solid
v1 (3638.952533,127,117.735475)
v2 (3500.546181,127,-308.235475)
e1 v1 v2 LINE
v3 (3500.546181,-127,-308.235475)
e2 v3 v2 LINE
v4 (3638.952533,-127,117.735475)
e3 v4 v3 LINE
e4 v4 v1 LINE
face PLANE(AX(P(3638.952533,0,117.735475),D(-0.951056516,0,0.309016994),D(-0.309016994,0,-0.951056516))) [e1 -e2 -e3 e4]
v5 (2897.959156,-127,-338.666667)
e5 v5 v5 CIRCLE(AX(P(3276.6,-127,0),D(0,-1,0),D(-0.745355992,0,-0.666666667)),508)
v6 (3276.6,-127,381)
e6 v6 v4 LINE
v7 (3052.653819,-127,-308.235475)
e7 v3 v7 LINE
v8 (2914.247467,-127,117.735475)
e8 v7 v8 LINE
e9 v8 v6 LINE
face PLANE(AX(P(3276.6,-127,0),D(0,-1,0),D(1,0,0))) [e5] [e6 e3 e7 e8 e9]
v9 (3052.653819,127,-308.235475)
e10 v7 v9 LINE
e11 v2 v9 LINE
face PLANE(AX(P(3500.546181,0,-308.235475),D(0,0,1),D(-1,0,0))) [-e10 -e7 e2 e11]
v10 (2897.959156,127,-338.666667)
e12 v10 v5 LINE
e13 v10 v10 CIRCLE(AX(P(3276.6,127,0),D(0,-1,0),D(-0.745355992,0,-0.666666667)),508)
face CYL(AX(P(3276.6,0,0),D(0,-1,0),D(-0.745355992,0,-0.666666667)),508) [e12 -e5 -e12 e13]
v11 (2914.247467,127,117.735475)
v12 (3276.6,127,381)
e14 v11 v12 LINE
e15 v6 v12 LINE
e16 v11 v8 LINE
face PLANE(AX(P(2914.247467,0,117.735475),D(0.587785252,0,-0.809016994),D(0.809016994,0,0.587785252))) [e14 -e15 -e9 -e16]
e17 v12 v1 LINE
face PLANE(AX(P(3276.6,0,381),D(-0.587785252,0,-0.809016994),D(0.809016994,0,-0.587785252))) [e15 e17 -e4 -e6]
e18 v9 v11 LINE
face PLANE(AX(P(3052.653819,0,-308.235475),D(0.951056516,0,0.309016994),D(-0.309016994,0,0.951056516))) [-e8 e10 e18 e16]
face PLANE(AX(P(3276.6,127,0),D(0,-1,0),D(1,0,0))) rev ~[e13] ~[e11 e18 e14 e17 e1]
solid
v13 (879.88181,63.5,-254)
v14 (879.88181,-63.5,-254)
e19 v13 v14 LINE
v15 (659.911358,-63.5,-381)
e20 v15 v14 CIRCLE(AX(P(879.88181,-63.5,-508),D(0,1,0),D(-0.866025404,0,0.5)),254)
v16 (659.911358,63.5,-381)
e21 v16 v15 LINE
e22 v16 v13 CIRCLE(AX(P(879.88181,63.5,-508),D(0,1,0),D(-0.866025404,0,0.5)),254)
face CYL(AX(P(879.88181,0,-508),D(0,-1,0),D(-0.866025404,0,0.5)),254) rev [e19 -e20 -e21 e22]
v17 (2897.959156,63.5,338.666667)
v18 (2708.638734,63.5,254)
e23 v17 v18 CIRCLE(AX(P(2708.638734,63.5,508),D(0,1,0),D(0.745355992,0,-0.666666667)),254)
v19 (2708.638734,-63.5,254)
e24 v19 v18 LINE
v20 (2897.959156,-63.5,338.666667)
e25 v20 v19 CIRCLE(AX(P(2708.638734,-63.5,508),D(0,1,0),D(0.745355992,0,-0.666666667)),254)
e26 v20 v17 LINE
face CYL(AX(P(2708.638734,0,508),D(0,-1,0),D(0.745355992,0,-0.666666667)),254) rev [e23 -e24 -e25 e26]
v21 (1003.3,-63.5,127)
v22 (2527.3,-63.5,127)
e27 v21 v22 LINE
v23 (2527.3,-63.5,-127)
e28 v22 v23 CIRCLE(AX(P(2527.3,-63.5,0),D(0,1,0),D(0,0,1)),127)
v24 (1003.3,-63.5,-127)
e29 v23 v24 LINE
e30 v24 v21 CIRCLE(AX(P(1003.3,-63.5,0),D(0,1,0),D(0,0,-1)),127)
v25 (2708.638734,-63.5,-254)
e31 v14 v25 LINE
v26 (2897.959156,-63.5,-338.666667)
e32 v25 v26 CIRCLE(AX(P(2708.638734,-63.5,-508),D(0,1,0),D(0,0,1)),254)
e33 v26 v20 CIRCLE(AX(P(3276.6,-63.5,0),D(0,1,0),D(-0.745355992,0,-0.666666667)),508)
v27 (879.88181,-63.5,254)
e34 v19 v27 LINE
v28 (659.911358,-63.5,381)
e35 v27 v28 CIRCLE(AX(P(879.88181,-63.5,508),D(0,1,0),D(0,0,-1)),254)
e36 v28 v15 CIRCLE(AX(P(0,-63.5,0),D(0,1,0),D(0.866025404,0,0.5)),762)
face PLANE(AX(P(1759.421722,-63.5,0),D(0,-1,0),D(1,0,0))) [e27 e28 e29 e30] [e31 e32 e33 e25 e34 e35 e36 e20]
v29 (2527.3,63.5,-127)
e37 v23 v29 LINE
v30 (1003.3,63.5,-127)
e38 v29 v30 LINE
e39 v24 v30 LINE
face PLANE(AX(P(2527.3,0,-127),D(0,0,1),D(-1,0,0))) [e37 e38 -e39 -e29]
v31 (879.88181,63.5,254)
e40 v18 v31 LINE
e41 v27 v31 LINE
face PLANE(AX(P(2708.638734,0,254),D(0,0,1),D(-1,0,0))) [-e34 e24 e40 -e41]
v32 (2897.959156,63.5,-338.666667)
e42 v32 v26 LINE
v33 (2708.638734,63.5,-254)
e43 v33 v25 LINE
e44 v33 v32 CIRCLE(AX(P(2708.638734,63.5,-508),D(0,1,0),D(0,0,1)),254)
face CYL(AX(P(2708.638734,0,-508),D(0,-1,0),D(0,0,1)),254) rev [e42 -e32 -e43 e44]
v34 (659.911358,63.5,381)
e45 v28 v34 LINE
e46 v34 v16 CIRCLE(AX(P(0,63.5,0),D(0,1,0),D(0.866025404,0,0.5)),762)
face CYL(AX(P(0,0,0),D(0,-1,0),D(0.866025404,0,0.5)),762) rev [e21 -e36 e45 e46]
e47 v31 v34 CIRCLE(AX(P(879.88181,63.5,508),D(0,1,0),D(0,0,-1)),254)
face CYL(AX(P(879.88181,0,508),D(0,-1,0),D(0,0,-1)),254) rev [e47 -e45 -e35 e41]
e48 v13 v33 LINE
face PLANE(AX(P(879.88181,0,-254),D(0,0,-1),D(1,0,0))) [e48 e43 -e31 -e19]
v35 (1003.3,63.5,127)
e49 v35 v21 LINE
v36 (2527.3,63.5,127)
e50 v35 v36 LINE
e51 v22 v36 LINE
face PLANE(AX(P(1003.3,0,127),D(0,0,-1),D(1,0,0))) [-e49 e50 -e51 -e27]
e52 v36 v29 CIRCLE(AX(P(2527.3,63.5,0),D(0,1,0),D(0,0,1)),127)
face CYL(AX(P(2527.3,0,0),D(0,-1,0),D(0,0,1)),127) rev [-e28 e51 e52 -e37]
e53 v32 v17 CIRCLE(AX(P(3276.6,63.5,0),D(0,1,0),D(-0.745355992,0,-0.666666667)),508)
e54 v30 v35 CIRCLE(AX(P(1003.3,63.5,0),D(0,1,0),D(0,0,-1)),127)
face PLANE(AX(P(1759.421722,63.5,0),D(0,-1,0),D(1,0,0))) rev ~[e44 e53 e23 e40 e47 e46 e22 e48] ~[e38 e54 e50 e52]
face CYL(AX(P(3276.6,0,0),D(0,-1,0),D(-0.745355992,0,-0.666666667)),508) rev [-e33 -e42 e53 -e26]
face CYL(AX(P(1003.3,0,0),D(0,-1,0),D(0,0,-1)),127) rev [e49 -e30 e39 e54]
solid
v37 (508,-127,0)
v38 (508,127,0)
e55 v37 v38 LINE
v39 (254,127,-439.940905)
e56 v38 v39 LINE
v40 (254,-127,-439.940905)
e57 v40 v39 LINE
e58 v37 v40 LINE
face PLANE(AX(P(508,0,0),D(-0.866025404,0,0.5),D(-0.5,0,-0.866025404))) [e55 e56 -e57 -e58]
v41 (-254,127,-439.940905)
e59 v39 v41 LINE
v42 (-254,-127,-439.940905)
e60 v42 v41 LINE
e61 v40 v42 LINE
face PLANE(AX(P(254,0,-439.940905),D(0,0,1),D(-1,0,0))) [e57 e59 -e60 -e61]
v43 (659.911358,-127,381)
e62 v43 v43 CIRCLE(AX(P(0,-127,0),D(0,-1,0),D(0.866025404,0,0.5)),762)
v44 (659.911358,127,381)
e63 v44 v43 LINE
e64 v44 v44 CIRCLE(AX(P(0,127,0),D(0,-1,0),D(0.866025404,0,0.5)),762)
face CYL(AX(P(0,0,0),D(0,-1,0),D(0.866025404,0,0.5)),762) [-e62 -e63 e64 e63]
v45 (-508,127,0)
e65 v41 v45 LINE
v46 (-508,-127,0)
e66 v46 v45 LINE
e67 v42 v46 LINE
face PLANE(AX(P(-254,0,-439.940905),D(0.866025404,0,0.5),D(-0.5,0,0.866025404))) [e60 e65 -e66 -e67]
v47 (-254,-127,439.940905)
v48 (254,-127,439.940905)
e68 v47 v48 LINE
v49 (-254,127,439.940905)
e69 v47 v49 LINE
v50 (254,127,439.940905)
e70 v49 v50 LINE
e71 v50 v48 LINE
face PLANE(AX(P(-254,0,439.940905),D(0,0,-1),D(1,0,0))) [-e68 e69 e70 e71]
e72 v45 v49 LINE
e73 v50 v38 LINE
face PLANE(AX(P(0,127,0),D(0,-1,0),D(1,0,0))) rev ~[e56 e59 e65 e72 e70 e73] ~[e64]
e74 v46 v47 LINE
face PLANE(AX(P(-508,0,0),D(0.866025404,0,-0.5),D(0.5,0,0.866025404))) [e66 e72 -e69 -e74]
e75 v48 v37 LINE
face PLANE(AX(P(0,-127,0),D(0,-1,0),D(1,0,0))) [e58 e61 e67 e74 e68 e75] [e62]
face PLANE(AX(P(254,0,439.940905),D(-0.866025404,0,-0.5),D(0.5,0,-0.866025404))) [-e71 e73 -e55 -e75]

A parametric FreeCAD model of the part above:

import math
import FreeCAD as App
import Part
import Sketcher

V = App.Vector
Q = App.Units.Quantity

doc = App.newDocument("Part")
body = doc.addObject("PartDesign::Body", "Body")

# Sketch on XZ plane
sketch1 = doc.addObject("Sketcher::SketchObject", "Sketch")
body.addObject(sketch1)
sketch1.AttachmentSupport = (doc.XZ_Plane, [""])
sketch1.MapMode = "FlatFace"
sketch1.addGeometry([
    Part.Circle(V(3277, 0, 0), V(0, 0, 1), 508),  # 0
    Part.LineSegment(V(3053, -308, 0), V(2914, 118, 0)),  # 1
    Part.LineSegment(V(2914, 118, 0), V(3277, 381, 0)),  # 2
    Part.LineSegment(V(3277, 381, 0), V(3639, 118, 0)),  # 3
    Part.LineSegment(V(3639, 118, 0), V(3501, -308, 0)),  # 4
    Part.LineSegment(V(3501, -308, 0), V(3053, -308, 0)),  # 5
], False)
sketch1.addConstraint([
    Sketcher.Constraint("Coincident", 1, 2, 2, 1),
    Sketcher.Constraint("Coincident", 2, 2, 3, 1),
    Sketcher.Constraint("Coincident", 3, 2, 4, 1),
    Sketcher.Constraint("Coincident", 4, 2, 5, 1),
    Sketcher.Constraint("Coincident", 5, 2, 1, 1),
    Sketcher.Constraint("Horizontal", 5),
    Sketcher.Constraint("PointOnObject", 0, 3, -1),
    Sketcher.Constraint("Horizontal", 1, 2, 3, 2),
    Sketcher.Constraint("Vertical", 0, 3, 2, 2),
    Sketcher.Constraint("Equal", 1, 2),
    Sketcher.Constraint("Equal", 2, 3),
    Sketcher.Constraint("Equal", 3, 4),
    Sketcher.Constraint("Diameter", 0, Q("40 in")),
    Sketcher.Constraint("DistanceX", -1, 1, 0, 3, Q("129 in")),
    Sketcher.Constraint("DistanceY", -1, 1, 2, 2, Q("15 in")),
    Sketcher.Constraint("Angle", 1, Q("108 deg")),
    Sketcher.Constraint("Angle", 2, Q("36 deg")),
    Sketcher.Constraint("DistanceX", 5, 2, 5, 1, Q("447.892362 mm")),
])
pad1 = doc.addObject("PartDesign::Pad", "Pad")
body.addObject(pad1)
pad1.Profile = sketch1
pad1.Length = Q("10 in")
pad1.Midplane = True
body2 = doc.addObject("PartDesign::Body", "Body001")

# Sketch on XZ plane
sketch2 = doc.addObject("Sketcher::SketchObject", "Sketch001")
body2.addObject(sketch2)
sketch2.AttachmentSupport = (doc.getObject("XZ_Plane001"), [""])
sketch2.MapMode = "FlatFace"
sketch2.addGeometry([
    Part.Circle(V(0, 0, 0), V(0, 0, 1), 762),  # 0
    Part.LineSegment(V(-254, 440, 0), V(254, 440, 0)),  # 1
    Part.LineSegment(V(254, 440, 0), V(508, 0, 0)),  # 2
    Part.LineSegment(V(508, 0, 0), V(254, -440, 0)),  # 3
    Part.LineSegment(V(254, -440, 0), V(-254, -440, 0)),  # 4
    Part.LineSegment(V(-254, -440, 0), V(-508, 0, 0)),  # 5
    Part.LineSegment(V(-508, 0, 0), V(-254, 440, 0)),  # 6
], False)
sketch2.addConstraint([
    Sketcher.Constraint("Coincident", 1, 2, 2, 1),
    Sketcher.Constraint("Coincident", 2, 2, 3, 1),
    Sketcher.Constraint("Coincident", 3, 2, 4, 1),
    Sketcher.Constraint("Coincident", 4, 2, 5, 1),
    Sketcher.Constraint("Coincident", 5, 2, 6, 1),
    Sketcher.Constraint("Coincident", 6, 2, 1, 1),
    Sketcher.Constraint("Horizontal", 1),
    Sketcher.Constraint("Horizontal", 4),
    Sketcher.Constraint("Coincident", 0, 3, -1, 1),
    Sketcher.Constraint("Symmetric", 1, 2, 4, 2, -1, 1),
    Sketcher.Constraint("Symmetric", 2, 2, 5, 2, -1, 1),
    Sketcher.Constraint("PointOnObject", 2, 2, -1),
    Sketcher.Constraint("Parallel", 3, 6),
    Sketcher.Constraint("Vertical", 1, 2, 3, 2),
    Sketcher.Constraint("Diameter", 0, Q("60 in")),
    Sketcher.Constraint("DistanceX", 1, 1, 1, 2, Q("20 in")),
    Sketcher.Constraint("Distance", 2, Q("20 in")),
    Sketcher.Constraint("DistanceX", -1, 1, 2, 2, Q("20 in")),
])
pad2 = doc.addObject("PartDesign::Pad", "Pad001")
body2.addObject(pad2)
pad2.Profile = sketch2
pad2.Length = Q("10 in")
pad2.Midplane = True
body3 = doc.addObject("PartDesign::Body", "Body002")

# Sketch on XZ plane
sketch3 = doc.addObject("Sketcher::SketchObject", "Sketch002")
body3.addObject(sketch3)
sketch3.AttachmentSupport = (doc.getObject("XZ_Plane002"), [""])
sketch3.MapMode = "FlatFace"
sketch3.addGeometry([
    Part.ArcOfCircle(Part.Circle(V(0, 0, 0), V(0, 0, 1), 762), math.radians(-30), math.radians(30)),  # 0
    Part.ArcOfCircle(Part.Circle(V(880, -508, 0), V(0, 0, 1), 254), math.radians(90), math.radians(150)),  # 1
    Part.LineSegment(V(880, -254, 0), V(2709, -254, 0)),  # 2
    Part.ArcOfCircle(Part.Circle(V(2709, -508, 0), V(0, 0, 1), 254), math.radians(42), math.radians(90)),  # 3
    Part.ArcOfCircle(Part.Circle(V(3277, 0, 0), V(0, 0, 1), 508), math.radians(138), math.radians(222)),  # 4
    Part.ArcOfCircle(Part.Circle(V(2709, 508, 0), V(0, 0, 1), 254), math.radians(-90), math.radians(-42)),  # 5
    Part.LineSegment(V(2709, 254, 0), V(880, 254, 0)),  # 6
    Part.ArcOfCircle(Part.Circle(V(880, 508, 0), V(0, 0, 1), 254), math.radians(-150), math.radians(-90)),  # 7
    Part.ArcOfCircle(Part.Circle(V(1003, 0, 0), V(0, 0, 1), 127), math.radians(90), math.radians(270)),  # 8
    Part.LineSegment(V(1003, 127, 0), V(2527, 127, 0)),  # 9
    Part.ArcOfCircle(Part.Circle(V(2527, 0, 0), V(0, 0, 1), 127), math.radians(-90), math.radians(90)),  # 10
    Part.LineSegment(V(2527, -127, 0), V(1003, -127, 0)),  # 11
], False)
sketch3.addConstraint([
    Sketcher.Constraint("Tangent", 0, 1, 1, 2),
    Sketcher.Constraint("Tangent", 1, 1, 2, 1),
    Sketcher.Constraint("Tangent", 2, 2, 3, 2),
    Sketcher.Constraint("Tangent", 3, 1, 4, 2),
    Sketcher.Constraint("Tangent", 4, 1, 5, 2),
    Sketcher.Constraint("Tangent", 5, 1, 6, 1),
    Sketcher.Constraint("Tangent", 6, 2, 7, 2),
    Sketcher.Constraint("Tangent", 7, 1, 0, 2),
    Sketcher.Constraint("Tangent", 8, 1, 9, 1),
    Sketcher.Constraint("Tangent", 9, 2, 10, 2),
    Sketcher.Constraint("Tangent", 10, 1, 11, 1),
    Sketcher.Constraint("Tangent", 11, 2, 8, 2),
    Sketcher.Constraint("Horizontal", 2),
    Sketcher.Constraint("Horizontal", 6),
    Sketcher.Constraint("Horizontal", 9),
    Sketcher.Constraint("Horizontal", 11),
    Sketcher.Constraint("Coincident", 0, 3, -1, 1),
    Sketcher.Constraint("Equal", 1, 3),
    Sketcher.Constraint("Equal", 3, 5),
    Sketcher.Constraint("Equal", 5, 7),
    Sketcher.Constraint("Symmetric", 3, 3, 5, 3, -1),
    Sketcher.Constraint("PointOnObject", 8, 3, -1),
    Sketcher.Constraint("Radius", 0, Q("30 in")),
    Sketcher.Constraint("Radius", 1, Q("10 in")),
    Sketcher.Constraint("Radius", 4, Q("20 in")),
    Sketcher.Constraint("Radius", 8, Q("5 in")),
    Sketcher.Constraint("DistanceX", 9, 1, 9, 2, Q("60 in")),
    Sketcher.Constraint("DistanceY", 1, 3, -1, 1, Q("20 in")),
    Sketcher.Constraint("DistanceX", -1, 1, 4, 3, Q("129 in")),
    Sketcher.Constraint("DistanceX", -1, 1, 8, 3, Q("39.5 in")),
])
pad3 = doc.addObject("PartDesign::Pad", "Pad002")
body3.addObject(pad3)
pad3.Profile = sketch3
pad3.Length = Q("5 in")
pad3.Midplane = True

doc.recompute()
